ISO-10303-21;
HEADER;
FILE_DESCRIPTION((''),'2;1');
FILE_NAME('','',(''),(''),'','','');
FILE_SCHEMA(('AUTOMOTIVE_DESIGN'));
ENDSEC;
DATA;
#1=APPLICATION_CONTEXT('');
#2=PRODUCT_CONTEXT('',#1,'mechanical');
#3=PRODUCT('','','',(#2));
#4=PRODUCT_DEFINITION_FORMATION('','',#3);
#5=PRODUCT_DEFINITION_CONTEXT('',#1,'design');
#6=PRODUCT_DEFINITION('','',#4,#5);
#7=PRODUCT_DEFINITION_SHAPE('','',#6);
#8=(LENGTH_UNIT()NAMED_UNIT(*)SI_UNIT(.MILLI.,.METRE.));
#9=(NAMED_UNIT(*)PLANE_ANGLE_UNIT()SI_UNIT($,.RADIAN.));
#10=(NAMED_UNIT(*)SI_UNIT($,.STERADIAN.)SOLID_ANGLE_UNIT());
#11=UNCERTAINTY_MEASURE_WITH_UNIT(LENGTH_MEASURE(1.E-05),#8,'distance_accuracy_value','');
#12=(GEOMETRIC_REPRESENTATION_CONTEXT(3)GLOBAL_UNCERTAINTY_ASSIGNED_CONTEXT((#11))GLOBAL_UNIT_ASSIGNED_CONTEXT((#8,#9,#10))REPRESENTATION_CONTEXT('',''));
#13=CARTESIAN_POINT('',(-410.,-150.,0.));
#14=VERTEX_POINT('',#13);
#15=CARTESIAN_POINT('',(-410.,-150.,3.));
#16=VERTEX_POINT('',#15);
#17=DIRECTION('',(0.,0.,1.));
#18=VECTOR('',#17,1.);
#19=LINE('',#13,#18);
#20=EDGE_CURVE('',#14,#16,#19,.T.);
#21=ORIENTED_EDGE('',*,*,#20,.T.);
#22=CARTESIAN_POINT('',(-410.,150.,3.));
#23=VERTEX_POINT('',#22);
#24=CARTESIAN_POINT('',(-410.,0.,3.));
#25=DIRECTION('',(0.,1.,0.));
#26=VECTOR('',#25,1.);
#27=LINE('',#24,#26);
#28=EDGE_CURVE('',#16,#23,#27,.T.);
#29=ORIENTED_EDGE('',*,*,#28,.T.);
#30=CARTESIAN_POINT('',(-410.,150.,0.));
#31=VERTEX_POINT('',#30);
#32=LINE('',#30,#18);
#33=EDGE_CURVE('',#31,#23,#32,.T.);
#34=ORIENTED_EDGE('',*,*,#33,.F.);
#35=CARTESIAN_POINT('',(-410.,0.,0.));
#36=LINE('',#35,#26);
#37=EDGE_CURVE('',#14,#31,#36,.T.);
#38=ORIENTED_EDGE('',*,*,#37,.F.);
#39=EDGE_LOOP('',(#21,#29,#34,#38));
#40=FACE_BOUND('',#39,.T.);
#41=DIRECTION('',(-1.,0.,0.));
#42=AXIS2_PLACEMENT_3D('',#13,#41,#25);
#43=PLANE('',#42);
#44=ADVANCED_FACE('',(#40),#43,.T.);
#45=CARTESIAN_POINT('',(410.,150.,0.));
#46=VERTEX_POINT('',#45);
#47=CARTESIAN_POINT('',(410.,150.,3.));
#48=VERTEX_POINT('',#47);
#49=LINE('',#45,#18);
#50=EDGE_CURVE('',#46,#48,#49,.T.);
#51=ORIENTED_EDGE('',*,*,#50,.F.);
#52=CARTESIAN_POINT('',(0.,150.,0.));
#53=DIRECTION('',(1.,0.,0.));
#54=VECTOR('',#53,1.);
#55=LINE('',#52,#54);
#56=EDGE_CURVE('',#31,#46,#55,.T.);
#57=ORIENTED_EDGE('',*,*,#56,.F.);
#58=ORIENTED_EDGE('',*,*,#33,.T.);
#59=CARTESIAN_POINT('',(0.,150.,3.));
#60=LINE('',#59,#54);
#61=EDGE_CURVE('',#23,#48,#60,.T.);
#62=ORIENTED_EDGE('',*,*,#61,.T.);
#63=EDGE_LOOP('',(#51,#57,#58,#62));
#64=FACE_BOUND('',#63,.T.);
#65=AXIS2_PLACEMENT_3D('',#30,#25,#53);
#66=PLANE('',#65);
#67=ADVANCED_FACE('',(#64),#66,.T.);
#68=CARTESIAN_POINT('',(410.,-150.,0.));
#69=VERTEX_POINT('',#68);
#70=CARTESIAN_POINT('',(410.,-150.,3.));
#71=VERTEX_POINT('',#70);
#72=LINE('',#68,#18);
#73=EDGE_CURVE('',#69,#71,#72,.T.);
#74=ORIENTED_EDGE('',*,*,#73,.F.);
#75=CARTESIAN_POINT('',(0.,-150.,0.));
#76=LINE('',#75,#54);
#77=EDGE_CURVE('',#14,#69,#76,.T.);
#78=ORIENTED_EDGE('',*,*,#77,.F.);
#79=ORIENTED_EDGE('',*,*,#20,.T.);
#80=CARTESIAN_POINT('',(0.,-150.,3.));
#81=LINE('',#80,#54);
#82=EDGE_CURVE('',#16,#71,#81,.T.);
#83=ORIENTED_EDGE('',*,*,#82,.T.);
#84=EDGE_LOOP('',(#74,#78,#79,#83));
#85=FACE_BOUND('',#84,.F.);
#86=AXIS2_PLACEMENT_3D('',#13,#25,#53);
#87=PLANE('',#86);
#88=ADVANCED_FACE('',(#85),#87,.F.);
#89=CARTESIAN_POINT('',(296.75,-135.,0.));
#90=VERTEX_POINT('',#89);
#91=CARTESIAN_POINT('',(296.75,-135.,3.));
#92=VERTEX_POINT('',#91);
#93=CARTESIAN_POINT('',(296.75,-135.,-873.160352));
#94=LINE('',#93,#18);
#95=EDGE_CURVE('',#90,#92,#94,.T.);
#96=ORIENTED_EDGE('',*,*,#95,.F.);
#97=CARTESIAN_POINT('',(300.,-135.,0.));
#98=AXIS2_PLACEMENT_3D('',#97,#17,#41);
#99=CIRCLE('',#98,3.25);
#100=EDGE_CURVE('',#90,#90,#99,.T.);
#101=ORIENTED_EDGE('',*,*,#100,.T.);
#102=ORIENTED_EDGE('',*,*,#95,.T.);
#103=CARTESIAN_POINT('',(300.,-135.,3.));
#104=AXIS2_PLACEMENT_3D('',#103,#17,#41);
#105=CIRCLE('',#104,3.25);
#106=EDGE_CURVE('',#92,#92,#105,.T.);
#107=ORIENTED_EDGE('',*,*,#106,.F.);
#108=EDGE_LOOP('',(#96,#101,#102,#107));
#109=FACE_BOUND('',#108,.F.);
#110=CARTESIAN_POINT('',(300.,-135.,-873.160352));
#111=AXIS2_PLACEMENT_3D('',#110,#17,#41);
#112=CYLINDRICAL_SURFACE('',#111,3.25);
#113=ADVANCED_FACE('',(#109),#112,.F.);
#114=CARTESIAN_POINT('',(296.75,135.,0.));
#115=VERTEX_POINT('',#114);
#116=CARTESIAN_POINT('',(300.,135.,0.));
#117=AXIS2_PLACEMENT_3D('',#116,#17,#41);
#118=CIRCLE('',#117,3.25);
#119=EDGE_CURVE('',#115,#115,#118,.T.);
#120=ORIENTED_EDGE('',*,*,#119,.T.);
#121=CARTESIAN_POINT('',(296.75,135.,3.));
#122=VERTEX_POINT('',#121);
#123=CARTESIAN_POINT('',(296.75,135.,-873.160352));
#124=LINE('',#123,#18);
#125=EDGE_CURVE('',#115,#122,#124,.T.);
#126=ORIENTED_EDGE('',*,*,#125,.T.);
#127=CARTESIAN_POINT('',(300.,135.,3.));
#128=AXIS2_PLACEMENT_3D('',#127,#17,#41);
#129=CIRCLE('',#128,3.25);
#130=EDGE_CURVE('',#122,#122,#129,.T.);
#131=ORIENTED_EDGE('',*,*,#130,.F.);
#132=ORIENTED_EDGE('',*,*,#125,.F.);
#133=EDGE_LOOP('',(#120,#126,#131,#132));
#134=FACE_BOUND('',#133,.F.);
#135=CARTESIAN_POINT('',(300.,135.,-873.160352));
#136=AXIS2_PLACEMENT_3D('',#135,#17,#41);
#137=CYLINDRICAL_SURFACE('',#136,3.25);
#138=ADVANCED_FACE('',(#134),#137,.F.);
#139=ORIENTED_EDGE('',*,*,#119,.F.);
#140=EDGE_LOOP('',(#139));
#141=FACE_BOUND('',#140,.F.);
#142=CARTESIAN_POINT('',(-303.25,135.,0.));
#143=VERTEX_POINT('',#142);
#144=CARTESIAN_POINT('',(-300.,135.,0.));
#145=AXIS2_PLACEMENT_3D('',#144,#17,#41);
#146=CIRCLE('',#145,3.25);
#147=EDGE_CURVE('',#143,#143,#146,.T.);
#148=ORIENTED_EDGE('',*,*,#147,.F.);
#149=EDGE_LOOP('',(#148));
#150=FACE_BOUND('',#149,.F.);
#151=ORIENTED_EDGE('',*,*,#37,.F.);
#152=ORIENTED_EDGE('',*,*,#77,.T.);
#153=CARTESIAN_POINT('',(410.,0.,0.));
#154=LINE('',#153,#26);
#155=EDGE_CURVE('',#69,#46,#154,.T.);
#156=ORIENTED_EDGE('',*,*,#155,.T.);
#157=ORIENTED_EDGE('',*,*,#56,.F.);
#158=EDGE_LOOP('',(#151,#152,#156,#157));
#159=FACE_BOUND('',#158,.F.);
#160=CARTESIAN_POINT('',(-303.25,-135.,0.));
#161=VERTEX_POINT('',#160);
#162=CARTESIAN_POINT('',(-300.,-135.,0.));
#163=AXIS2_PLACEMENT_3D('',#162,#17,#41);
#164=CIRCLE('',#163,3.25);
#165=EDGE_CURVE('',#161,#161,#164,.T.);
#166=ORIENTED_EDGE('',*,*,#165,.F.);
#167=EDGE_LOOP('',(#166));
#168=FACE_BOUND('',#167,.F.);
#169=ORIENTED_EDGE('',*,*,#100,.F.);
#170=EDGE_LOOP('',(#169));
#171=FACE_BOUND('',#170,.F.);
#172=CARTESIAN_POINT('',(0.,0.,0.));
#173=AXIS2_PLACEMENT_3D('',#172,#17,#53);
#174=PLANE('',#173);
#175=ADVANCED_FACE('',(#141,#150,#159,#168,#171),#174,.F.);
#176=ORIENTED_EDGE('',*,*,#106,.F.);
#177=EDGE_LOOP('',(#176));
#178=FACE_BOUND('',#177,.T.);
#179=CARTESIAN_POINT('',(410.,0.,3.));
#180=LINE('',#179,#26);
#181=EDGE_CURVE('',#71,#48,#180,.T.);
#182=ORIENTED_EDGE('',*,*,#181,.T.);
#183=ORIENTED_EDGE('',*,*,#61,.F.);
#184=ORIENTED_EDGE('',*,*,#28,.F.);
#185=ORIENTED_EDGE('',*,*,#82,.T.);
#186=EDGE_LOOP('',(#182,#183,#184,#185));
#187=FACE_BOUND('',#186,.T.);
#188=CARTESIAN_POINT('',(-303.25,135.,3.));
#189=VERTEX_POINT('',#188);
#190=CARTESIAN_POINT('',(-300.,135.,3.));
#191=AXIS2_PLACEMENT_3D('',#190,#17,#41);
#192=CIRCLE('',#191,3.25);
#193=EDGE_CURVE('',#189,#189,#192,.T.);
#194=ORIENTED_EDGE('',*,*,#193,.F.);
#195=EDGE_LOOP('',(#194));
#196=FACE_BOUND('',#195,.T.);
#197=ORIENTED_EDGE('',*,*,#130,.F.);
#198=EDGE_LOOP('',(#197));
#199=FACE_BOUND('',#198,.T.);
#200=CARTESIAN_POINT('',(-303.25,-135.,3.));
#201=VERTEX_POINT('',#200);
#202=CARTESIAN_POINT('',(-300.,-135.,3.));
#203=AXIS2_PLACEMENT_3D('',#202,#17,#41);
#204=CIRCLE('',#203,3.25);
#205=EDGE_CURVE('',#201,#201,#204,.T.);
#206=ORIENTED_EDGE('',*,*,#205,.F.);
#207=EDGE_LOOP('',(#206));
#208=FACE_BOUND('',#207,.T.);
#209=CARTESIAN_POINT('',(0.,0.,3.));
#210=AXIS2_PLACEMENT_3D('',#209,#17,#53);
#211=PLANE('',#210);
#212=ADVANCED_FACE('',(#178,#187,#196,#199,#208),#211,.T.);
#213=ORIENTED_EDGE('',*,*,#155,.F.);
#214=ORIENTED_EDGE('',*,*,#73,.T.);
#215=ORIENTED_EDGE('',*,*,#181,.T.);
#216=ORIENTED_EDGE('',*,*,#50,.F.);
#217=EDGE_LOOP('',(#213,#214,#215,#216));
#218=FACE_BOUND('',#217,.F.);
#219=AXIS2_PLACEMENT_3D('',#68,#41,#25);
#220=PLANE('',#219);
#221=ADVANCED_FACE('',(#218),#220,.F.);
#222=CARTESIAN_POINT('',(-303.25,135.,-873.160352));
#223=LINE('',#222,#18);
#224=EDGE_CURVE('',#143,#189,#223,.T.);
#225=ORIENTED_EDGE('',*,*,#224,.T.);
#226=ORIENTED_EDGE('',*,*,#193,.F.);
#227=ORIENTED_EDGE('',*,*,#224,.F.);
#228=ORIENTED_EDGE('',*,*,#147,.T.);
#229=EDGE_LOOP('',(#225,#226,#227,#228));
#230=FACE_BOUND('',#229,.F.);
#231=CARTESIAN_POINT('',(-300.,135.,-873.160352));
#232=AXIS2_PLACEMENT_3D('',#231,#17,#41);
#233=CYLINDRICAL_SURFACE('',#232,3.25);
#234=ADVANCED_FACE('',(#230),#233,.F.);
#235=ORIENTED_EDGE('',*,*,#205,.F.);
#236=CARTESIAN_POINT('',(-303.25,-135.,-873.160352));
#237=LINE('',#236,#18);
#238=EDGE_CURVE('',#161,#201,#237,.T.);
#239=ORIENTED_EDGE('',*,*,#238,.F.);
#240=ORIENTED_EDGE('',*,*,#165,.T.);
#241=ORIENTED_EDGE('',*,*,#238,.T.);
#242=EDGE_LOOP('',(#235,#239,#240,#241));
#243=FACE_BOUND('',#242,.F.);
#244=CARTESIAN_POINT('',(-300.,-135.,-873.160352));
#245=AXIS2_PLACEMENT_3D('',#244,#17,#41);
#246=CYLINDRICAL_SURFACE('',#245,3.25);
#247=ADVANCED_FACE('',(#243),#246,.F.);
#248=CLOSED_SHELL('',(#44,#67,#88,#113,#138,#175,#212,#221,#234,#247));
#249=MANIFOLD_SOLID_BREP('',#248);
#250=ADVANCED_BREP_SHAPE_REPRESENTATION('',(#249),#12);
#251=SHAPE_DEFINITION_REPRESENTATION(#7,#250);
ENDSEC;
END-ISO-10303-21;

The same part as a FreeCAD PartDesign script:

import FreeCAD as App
import Part
import Sketcher


def add_polygon(sketch, points):
    """Adds a closed chain of lines whose ends are joined by coincident constraints."""
    first, n = sketch.GeometryCount, len(points)
    for a, b in zip(points, points[1:] + points[:1]):
        sketch.addGeometry(Part.LineSegment(App.Vector(*a, 0), App.Vector(*b, 0)), False)
    for i in range(n):
        sketch.addConstraint(Sketcher.Constraint("Coincident", first + i, 2, first + (i + 1) % n, 1))

doc = App.newDocument("Part")
body = doc.addObject("PartDesign::Body", "Body")

# Sketch on XY plane
sketch1 = body.newObject("Sketcher::SketchObject", "Sketch")
sketch1.AttachmentSupport = (doc.getObject("XY_Plane"), [""])
sketch1.MapMode = "FlatFace"
add_polygon(sketch1, [(-410, 150), (-410, -150), (410, -150), (410, 150)])  # lines 0-3
sketch1.addConstraint([
    Sketcher.Constraint("Vertical", 0),
    Sketcher.Constraint("Horizontal", 1),
    Sketcher.Constraint("Vertical", 2),
    Sketcher.Constraint("Horizontal", 3),
    Sketcher.Constraint("Symmetric", 0, 2, 2, 2, -1, 1),
    Sketcher.Constraint("DistanceX", 1, 1, 1, 2, 820.0),
    Sketcher.Constraint("DistanceY", 0, 2, 0, 1, 300.0),
])
pad1 = body.newObject("PartDesign::Pad", "Pad")
pad1.Profile = sketch1
pad1.Length = 3

# Sketch on XY plane
sketch2 = body.newObject("Sketcher::SketchObject", "Sketch001")
sketch2.AttachmentSupport = (doc.getObject("XY_Plane"), [""])
sketch2.MapMode = "FlatFace"
sketch2.addGeometry([
    Part.Circle(App.Vector(-300, -135, 0), App.Vector(0, 0, 1), 3.2),
    Part.Circle(App.Vector(-300, 135, 0), App.Vector(0, 0, 1), 3.2),
    Part.Circle(App.Vector(300, 135, 0), App.Vector(0, 0, 1), 3.2),
    Part.Circle(App.Vector(300, -135, 0), App.Vector(0, 0, 1), 3.2),
], False)
sketch2.addConstraint([
    Sketcher.Constraint("Equal", 0, 1),
    Sketcher.Constraint("Equal", 1, 2),
    Sketcher.Constraint("Equal", 2, 3),
    Sketcher.Constraint("Symmetric", 0, 3, 2, 3, -1, 1),
    Sketcher.Constraint("Symmetric", 1, 3, 3, 3, -1, 1),
    Sketcher.Constraint("Symmetric", 1, 3, 2, 3, -2),
    Sketcher.Constraint("Diameter", 0, 6.5),
    Sketcher.Constraint("DistanceX", 0, 3, -1, 1, 300.0),
    Sketcher.Constraint("DistanceY", 0, 3, -1, 1, 135.0),
])
doc.recompute()
hole = body.newObject("PartDesign::Hole", "Hole")
hole.Profile = sketch2
hole.ThreadType = "None"
hole.Diameter = 6.5
hole.DepthType = "ThroughAll"
hole.Reversed = True

doc.recompute()
